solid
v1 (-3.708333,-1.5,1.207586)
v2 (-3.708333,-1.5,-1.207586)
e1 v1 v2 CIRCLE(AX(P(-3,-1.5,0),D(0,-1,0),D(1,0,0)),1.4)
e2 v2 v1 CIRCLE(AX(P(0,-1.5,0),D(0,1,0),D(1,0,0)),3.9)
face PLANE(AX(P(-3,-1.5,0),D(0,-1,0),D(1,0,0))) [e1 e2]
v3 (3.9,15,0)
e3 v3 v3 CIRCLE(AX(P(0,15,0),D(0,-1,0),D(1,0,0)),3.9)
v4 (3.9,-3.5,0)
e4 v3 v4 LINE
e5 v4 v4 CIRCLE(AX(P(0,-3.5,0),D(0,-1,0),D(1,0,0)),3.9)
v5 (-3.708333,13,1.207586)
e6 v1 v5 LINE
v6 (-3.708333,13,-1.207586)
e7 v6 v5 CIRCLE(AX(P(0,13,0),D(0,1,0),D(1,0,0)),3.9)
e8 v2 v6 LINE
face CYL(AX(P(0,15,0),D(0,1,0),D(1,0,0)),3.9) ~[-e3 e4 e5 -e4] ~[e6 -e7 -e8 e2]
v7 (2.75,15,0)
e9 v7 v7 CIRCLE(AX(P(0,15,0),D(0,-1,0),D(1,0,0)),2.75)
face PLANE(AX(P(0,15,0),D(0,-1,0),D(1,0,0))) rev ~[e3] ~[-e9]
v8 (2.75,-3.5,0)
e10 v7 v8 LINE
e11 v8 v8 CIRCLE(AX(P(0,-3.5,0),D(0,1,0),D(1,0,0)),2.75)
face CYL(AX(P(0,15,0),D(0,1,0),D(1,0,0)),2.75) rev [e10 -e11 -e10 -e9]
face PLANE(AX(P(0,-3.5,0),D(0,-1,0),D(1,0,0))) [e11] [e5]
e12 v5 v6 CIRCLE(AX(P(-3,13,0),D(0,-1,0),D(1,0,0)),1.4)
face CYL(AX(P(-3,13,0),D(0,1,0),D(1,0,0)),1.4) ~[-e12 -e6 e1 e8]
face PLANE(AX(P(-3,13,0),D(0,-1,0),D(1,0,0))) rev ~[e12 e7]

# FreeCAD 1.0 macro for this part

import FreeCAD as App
import Part
import Sketcher
from FreeCAD import Vector

doc = App.newDocument("Part")
body = doc.addObject("PartDesign::Body", "Body")

# Sketch on XZ plane
sketch1 = body.newObject("Sketcher::SketchObject", "Sketch")
sketch1.AttachmentSupport = (doc.getObject("XZ_Plane"), [""])
sketch1.MapMode = "FlatFace"
sketch1.addGeometry(Part.Circle(Vector(0, 0, 0), Vector(0, 0, 1), 3.9), False)
sketch1.addConstraint([
    Sketcher.Constraint("Coincident", 0, 3, -1, 1),
    Sketcher.Constraint("Diameter", 0, 7.8),
])
pad1 = body.newObject("PartDesign::Pad", "Pad")
pad1.Profile = sketch1
pad1.Length = 18.5

# Sketch on XZ plane
sketch2 = body.newObject("Sketcher::SketchObject", "Sketch001")
sketch2.AttachmentSupport = (doc.getObject("XZ_Plane"), [""])
sketch2.MapMode = "FlatFace"
sketch2.AttachmentOffset = App.Placement(Vector(0, 0, 2), App.Rotation())
sketch2.addGeometry(Part.Circle(Vector(-3, 0, 0), Vector(0, 0, 1), 1.4), False)
sketch2.addConstraint([
    Sketcher.Constraint("PointOnObject", 0, 3, -1),
    Sketcher.Constraint("Diameter", 0, 2.8),
    Sketcher.Constraint("DistanceX", 0, 3, -1, 1, 3.0),
])
pad2 = body.newObject("PartDesign::Pad", "Pad001")
pad2.Profile = sketch2
pad2.Length = 14.5

# Sketch on XZ plane
sketch3 = body.newObject("Sketcher::SketchObject", "Sketch002")
sketch3.AttachmentSupport = (doc.getObject("XZ_Plane"), [""])
sketch3.MapMode = "FlatFace"
sketch3.addGeometry(Part.Circle(Vector(0, 0, 0), Vector(0, 0, 1), 2.8), False)
sketch3.addConstraint([
    Sketcher.Constraint("Coincident", 0, 3, -1, 1),
    Sketcher.Constraint("Diameter", 0, 5.5),
])
pocket1 = body.newObject("PartDesign::Pocket", "Pocket")
pocket1.Profile = sketch3
pocket1.Type = "ThroughAll"
pocket1.Midplane = True
body2 = doc.addObject("PartDesign::Body", "Body001")
doc.recompute()

body.Placement = App.Placement(Vector(0, 15, 0), App.Rotation(Vector(0, 0, 1), 0))
boolean = body2.newObject("PartDesign::Boolean", "Boolean")
boolean.Type = "Fuse"
boolean.addObjects([body])

doc.recompute()
